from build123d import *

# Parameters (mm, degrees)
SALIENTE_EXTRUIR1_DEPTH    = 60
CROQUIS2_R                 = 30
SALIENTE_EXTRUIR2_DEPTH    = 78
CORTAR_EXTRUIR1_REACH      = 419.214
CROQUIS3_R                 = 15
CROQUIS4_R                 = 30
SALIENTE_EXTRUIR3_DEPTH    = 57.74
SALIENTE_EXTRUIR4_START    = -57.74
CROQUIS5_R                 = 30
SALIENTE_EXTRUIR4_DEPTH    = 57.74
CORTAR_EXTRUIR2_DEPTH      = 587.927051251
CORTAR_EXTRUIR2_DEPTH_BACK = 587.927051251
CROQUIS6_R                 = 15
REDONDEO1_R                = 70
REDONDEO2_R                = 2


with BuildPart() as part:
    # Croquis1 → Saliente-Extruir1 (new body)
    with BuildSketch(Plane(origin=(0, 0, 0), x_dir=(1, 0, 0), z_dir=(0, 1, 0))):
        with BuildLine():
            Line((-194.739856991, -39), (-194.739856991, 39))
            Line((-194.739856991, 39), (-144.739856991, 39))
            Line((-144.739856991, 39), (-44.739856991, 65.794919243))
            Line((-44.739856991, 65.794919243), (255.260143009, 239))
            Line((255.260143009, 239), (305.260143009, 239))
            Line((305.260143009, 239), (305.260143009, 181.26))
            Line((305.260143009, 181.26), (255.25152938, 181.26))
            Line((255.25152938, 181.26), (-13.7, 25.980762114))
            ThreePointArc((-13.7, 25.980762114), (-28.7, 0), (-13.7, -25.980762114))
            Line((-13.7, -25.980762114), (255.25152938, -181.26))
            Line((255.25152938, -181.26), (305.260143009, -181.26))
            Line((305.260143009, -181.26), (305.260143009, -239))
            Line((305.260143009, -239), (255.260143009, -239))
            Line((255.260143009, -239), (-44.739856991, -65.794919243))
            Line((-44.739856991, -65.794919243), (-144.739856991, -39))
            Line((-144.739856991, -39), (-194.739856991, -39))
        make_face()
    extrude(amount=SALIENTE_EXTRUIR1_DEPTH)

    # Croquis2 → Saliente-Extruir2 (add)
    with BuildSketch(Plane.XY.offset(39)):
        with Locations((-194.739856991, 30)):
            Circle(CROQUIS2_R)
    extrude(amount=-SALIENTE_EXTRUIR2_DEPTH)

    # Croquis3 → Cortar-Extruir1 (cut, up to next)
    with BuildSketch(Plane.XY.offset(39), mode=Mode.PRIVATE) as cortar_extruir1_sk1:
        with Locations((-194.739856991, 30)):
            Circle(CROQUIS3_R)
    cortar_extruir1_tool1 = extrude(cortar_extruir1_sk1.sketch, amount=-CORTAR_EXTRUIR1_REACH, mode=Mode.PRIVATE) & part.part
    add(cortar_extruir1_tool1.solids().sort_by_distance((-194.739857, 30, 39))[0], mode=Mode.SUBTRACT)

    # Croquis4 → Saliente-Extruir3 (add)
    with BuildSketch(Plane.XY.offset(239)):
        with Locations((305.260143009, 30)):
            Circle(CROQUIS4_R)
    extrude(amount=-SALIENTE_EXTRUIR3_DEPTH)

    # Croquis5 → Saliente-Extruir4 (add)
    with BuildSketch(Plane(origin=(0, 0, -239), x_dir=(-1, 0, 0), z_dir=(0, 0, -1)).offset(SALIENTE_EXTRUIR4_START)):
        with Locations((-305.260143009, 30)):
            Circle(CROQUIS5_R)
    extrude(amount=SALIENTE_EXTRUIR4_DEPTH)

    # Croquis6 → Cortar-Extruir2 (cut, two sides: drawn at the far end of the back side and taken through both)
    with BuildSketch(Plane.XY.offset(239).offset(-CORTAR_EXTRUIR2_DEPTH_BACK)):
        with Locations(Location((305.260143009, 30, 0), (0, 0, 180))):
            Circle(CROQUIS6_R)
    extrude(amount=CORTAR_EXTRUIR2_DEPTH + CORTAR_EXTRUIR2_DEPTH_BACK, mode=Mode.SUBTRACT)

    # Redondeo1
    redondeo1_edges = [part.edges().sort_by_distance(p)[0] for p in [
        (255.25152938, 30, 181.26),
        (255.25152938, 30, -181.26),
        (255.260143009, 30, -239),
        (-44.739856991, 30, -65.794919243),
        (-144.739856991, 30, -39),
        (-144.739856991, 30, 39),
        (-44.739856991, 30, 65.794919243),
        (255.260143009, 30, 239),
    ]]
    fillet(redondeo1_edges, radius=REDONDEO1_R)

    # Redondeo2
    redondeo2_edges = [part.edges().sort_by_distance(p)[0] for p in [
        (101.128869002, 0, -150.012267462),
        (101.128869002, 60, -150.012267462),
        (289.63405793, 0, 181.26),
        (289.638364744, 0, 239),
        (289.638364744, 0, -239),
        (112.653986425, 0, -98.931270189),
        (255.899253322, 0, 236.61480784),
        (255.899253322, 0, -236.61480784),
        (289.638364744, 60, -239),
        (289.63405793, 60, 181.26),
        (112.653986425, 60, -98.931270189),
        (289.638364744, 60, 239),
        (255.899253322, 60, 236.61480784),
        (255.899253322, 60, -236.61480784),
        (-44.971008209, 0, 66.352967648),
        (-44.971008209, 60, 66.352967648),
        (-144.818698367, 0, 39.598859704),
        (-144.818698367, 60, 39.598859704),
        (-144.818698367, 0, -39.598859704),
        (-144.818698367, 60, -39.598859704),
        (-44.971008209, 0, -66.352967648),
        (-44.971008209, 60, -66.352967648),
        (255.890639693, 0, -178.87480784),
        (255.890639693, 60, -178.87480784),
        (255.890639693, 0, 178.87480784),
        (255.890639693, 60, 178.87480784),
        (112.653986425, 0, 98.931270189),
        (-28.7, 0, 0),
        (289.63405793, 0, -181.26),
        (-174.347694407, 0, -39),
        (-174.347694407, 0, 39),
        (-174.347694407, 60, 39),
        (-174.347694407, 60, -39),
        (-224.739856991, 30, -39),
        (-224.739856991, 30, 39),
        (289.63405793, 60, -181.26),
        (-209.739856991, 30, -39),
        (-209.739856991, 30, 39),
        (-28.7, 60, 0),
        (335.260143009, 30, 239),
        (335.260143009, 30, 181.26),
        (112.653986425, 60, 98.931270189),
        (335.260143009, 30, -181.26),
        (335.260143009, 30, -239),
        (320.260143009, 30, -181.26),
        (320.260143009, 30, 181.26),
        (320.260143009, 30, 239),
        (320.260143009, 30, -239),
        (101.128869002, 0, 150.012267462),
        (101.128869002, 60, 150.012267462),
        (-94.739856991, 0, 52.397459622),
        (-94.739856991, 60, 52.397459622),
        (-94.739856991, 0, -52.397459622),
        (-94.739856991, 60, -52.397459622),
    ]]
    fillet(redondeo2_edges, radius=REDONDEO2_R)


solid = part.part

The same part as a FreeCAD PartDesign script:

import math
import FreeCAD as App
import Part
import Sketcher

V = App.Vector
Q = App.Units.Quantity


def edges_at(feature, points):
    """Names of the edges that pass closest to the given points."""
    edges = feature.Shape.Edges
    near = lambda p: min(range(len(edges)), key=lambda i: edges[i].distToShape(Part.Vertex(*p))[0])
    return sorted({f"Edge{near(p) + 1}" for p in points})

doc = App.newDocument("Part")
body = doc.addObject("PartDesign::Body", "Body")

# Sketch on XZ plane
sketch1 = doc.addObject("Sketcher::SketchObject", "Sketch")
body.addObject(sketch1)
sketch1.AttachmentSupport = (doc.XZ_Plane, [""])
sketch1.MapMode = "FlatFace"
sketch1.addGeometry([
    Part.LineSegment(V(-195, -39, 0), V(-195, 39, 0)),  # 0
    Part.LineSegment(V(-195, 39, 0), V(-145, 39, 0)),  # 1
    Part.LineSegment(V(-145, 39, 0), V(-45, 66, 0)),  # 2
    Part.LineSegment(V(-45, 66, 0), V(255, 239, 0)),  # 3
    Part.LineSegment(V(255, 239, 0), V(305, 239, 0)),  # 4
    Part.LineSegment(V(305, 239, 0), V(305, 181, 0)),  # 5
    Part.LineSegment(V(305, 181, 0), V(255, 181, 0)),  # 6
    Part.LineSegment(V(255, 181, 0), V(-14, 26, 0)),  # 7
    Part.ArcOfCircle(Part.Circle(V(1, 0, 0), V(0, 0, 1), 30), math.radians(120), math.radians(240)),  # 8
    Part.LineSegment(V(-14, -26, 0), V(255, -181, 0)),  # 9
    Part.LineSegment(V(255, -181, 0), V(305, -181, 0)),  # 10
    Part.LineSegment(V(305, -181, 0), V(305, -239, 0)),  # 11
    Part.LineSegment(V(305, -239, 0), V(255, -239, 0)),  # 12
    Part.LineSegment(V(255, -239, 0), V(-45, -66, 0)),  # 13
    Part.LineSegment(V(-45, -66, 0), V(-145, -39, 0)),  # 14
    Part.LineSegment(V(-145, -39, 0), V(-195, -39, 0)),  # 15
], False)
sketch1.addConstraint([
    Sketcher.Constraint("Coincident", 0, 2, 1, 1),
    Sketcher.Constraint("Coincident", 1, 2, 2, 1),
    Sketcher.Constraint("Coincident", 2, 2, 3, 1),
    Sketcher.Constraint("Coincident", 3, 2, 4, 1),
    Sketcher.Constraint("Coincident", 4, 2, 5, 1),
    Sketcher.Constraint("Coincident", 5, 2, 6, 1),
    Sketcher.Constraint("Coincident", 6, 2, 7, 1),
    Sketcher.Constraint("Tangent", 7, 2, 8, 1),
    Sketcher.Constraint("Tangent", 8, 2, 9, 1),
    Sketcher.Constraint("Coincident", 9, 2, 10, 1),
    Sketcher.Constraint("Coincident", 10, 2, 11, 1),
    Sketcher.Constraint("Coincident", 11, 2, 12, 1),
    Sketcher.Constraint("Coincident", 12, 2, 13, 1),
    Sketcher.Constraint("Coincident", 13, 2, 14, 1),
    Sketcher.Constraint("Coincident", 14, 2, 15, 1),
    Sketcher.Constraint("Coincident", 15, 2, 0, 1),
    Sketcher.Constraint("Vertical", 0),
    Sketcher.Constraint("Horizontal", 1),
    Sketcher.Constraint("Horizontal", 4),
    Sketcher.Constraint("Vertical", 5),
    Sketcher.Constraint("Horizontal", 6),
    Sketcher.Constraint("Horizontal", 10),
    Sketcher.Constraint("Vertical", 11),
    Sketcher.Constraint("Horizontal", 12),
    Sketcher.Constraint("Horizontal", 15),
    Sketcher.Constraint("Symmetric", 7, 2, 8, 2, -1),
    Sketcher.Constraint("Symmetric", 5, 2, 10, 2, -1),
    Sketcher.Constraint("Symmetric", 3, 2, 12, 2, -1),
    Sketcher.Constraint("Symmetric", 2, 2, 13, 2, -1),
    Sketcher.Constraint("Symmetric", 1, 2, 14, 2, -1),
    Sketcher.Constraint("Parallel", 3, 7),
    Sketcher.Constraint("Equal", 1, 4),
    Sketcher.Constraint("Radius", 8, 30.0),
    Sketcher.Constraint("DistanceX", 1, 1, 1, 2, 50.0),
    Sketcher.Constraint("DistanceY", 0, 1, 0, 2, 78.0),
    Sketcher.Constraint("Angle", 2, Q("15 deg")),
    Sketcher.Constraint("Angle", 3, Q("30 deg")),
    Sketcher.Constraint("DistanceY", -1, 1, 3, 2, 239.0),
    Sketcher.Constraint("DistanceX", 1, 2, 2, 2, 100.0),
    Sketcher.Constraint("DistanceY", 5, 2, 5, 1, 57.74),
    Sketcher.Constraint("DistanceX", -1, 1, 8, 3, 1.3),
    Sketcher.Constraint("DistanceX", 6, 2, 6, 1, 50.008614),
])
pad1 = doc.addObject("PartDesign::Pad", "Pad")
body.addObject(pad1)
pad1.Profile = sketch1
pad1.Length = 60
pad1.Reversed = True

# Sketch on XY plane
sketch2 = doc.addObject("Sketcher::SketchObject", "Sketch001")
body.addObject(sketch2)
sketch2.AttachmentSupport = (doc.XY_Plane, [""])
sketch2.MapMode = "FlatFace"
sketch2.AttachmentOffset = App.Placement(V(0, 0, 39), App.Rotation())
sketch2.addGeometry(Part.Circle(V(-195, 30, 0), V(0, 0, 1), 30), False)
sketch2.addConstraint([
    Sketcher.Constraint("Diameter", 0, 60.0),
    Sketcher.Constraint("DistanceY", -1, 1, 0, 3, 30.0),
    Sketcher.Constraint("DistanceX", 0, 3, -1, 1, 194.739857),
])
pad2 = doc.addObject("PartDesign::Pad", "Pad001")
body.addObject(pad2)
pad2.Profile = sketch2
pad2.Length = 78
pad2.Reversed = True

# Sketch on XY plane
sketch3 = doc.addObject("Sketcher::SketchObject", "Sketch002")
body.addObject(sketch3)
sketch3.AttachmentSupport = (doc.XY_Plane, [""])
sketch3.MapMode = "FlatFace"
sketch3.AttachmentOffset = App.Placement(V(0, 0, 39), App.Rotation())
sketch3.addGeometry(Part.Circle(V(-195, 30, 0), V(0, 0, 1), 15), False)
sketch3.addConstraint([
    Sketcher.Constraint("Diameter", 0, 30.0),
    Sketcher.Constraint("DistanceY", -1, 1, 0, 3, 30.0),
    Sketcher.Constraint("DistanceX", 0, 3, -1, 1, 194.739857),
])
pocket1 = doc.addObject("PartDesign::Pocket", "Pocket")
body.addObject(pocket1)
pocket1.Profile = sketch3
pocket1.Type = "UpToFirst"

# Sketch on XY plane
sketch4 = doc.addObject("Sketcher::SketchObject", "Sketch003")
body.addObject(sketch4)
sketch4.AttachmentSupport = (doc.XY_Plane, [""])
sketch4.MapMode = "FlatFace"
sketch4.AttachmentOffset = App.Placement(V(0, 0, 239), App.Rotation())
sketch4.addGeometry(Part.Circle(V(305, 30, 0), V(0, 0, 1), 30), False)
sketch4.addConstraint([
    Sketcher.Constraint("Diameter", 0, 60.0),
    Sketcher.Constraint("DistanceY", -1, 1, 0, 3, 30.0),
    Sketcher.Constraint("DistanceX", -1, 1, 0, 3, 305.260143),
])
pad3 = doc.addObject("PartDesign::Pad", "Pad002")
body.addObject(pad3)
pad3.Profile = sketch4
pad3.Length = 57.74
pad3.Reversed = True

# Sketch on XY plane
sketch5 = doc.addObject("Sketcher::SketchObject", "Sketch004")
body.addObject(sketch5)
sketch5.AttachmentSupport = (doc.XY_Plane, [""])
sketch5.MapMode = "FlatFace"
sketch5.AttachmentOffset = App.Placement(V(0, 0, -181.26), App.Rotation())
sketch5.addGeometry(Part.Circle(V(305, 30, 0), V(0, 0, 1), 30), False)
sketch5.addConstraint([
    Sketcher.Constraint("Diameter", 0, 60.0),
    Sketcher.Constraint("DistanceY", -1, 1, 0, 3, 30.0),
    Sketcher.Constraint("DistanceX", -1, 1, 0, 3, 305.260143),
])
pad4 = doc.addObject("PartDesign::Pad", "Pad003")
body.addObject(pad4)
pad4.Profile = sketch5
pad4.Length = 57.74
pad4.Reversed = True

# Sketch on XY plane
sketch6 = doc.addObject("Sketcher::SketchObject", "Sketch005")
body.addObject(sketch6)
sketch6.AttachmentSupport = (doc.XY_Plane, [""])
sketch6.MapMode = "FlatFace"
sketch6.AttachmentOffset = App.Placement(V(0, 0, 239), App.Rotation())
sketch6.addGeometry(Part.Circle(V(305, 30, 0), V(0, 0, 1), 15), False)
sketch6.addConstraint([
    Sketcher.Constraint("Diameter", 0, 30.0),
    Sketcher.Constraint("DistanceY", -1, 1, 0, 3, 30.0),
    Sketcher.Constraint("DistanceX", -1, 1, 0, 3, 305.260143),
])
pocket2 = doc.addObject("PartDesign::Pocket", "Pocket001")
body.addObject(pocket2)
pocket2.Profile = sketch6
pocket2.Type = "ThroughAll"
pocket2.Midplane = True
doc.recompute()

fillet = doc.addObject("PartDesign::Fillet", "Fillet")
body.addObject(fillet)
fillet.Base = (pocket2, edges_at(pocket2, [
    (255.252, 30, 181.26),
    (255.252, 30, -181.26),
    (255.26, 30, -239),
    (-44.74, 30, -65.795),
    (-144.74, 30, -39),
    (-144.74, 30, 39),
    (-44.74, 30, 65.795),
    (255.26, 30, 239),
]))
fillet.Radius = 70
doc.recompute()

fillet2 = doc.addObject("PartDesign::Fillet", "Fillet001")
body.addObject(fillet2)
fillet2.Base = (fillet, edges_at(fillet, [
    (101.129, 0, -150.012),
    (101.129, 60, -150.012),
    (289.634, 0, 181.26),
    (289.638, 0, 239),
    (289.638, 0, -239),
    (112.654, 0, -98.931),
    (255.899, 0, 236.615),
    (255.899, 0, -236.615),
    (289.638, 60, -239),
    (289.634, 60, 181.26),
    (112.654, 60, -98.931),
    (289.638, 60, 239),
    (255.899, 60, 236.615),
    (255.899, 60, -236.615),
    (-44.971, 0, 66.353),
    (-44.971, 60, 66.353),
    (-144.819, 0, 39.599),
    (-144.819, 60, 39.599),
    (-144.819, 0, -39.599),
    (-144.819, 60, -39.599),
    (-44.971, 0, -66.353),
    (-44.971, 60, -66.353),
    (255.891, 0, -178.875),
    (255.891, 60, -178.875),
    (255.891, 0, 178.875),
    (255.891, 60, 178.875),
    (112.654, 0, 98.931),
    (-28.7, 0, 0),
    (289.634, 0, -181.26),
    (-174.348, 0, -39),
    (-174.348, 0, 39),
    (-174.348, 60, 39),
    (-174.348, 60, -39),
    (-224.74, 30, -39),
    (-224.74, 30, 39),
    (289.634, 60, -181.26),
    (-209.74, 30, -39),
    (-209.74, 30, 39),
    (-28.7, 60, 0),
    (335.26, 30, 239),
    (335.26, 30, 181.26),
    (112.654, 60, 98.931),
    (335.26, 30, -181.26),
    (335.26, 30, -239),
    (320.26, 30, -181.26),
    (320.26, 30, 181.26),
    (320.26, 30, 239),
    (320.26, 30, -239),
    (101.129, 0, 150.012),
    (101.129, 60, 150.012),
    (-94.74, 0, 52.397),
    (-94.74, 60, 52.397),
    (-94.74, 0, -52.397),
    (-94.74, 60, -52.397),
]))
fillet2.Radius = 2

doc.recompute()
